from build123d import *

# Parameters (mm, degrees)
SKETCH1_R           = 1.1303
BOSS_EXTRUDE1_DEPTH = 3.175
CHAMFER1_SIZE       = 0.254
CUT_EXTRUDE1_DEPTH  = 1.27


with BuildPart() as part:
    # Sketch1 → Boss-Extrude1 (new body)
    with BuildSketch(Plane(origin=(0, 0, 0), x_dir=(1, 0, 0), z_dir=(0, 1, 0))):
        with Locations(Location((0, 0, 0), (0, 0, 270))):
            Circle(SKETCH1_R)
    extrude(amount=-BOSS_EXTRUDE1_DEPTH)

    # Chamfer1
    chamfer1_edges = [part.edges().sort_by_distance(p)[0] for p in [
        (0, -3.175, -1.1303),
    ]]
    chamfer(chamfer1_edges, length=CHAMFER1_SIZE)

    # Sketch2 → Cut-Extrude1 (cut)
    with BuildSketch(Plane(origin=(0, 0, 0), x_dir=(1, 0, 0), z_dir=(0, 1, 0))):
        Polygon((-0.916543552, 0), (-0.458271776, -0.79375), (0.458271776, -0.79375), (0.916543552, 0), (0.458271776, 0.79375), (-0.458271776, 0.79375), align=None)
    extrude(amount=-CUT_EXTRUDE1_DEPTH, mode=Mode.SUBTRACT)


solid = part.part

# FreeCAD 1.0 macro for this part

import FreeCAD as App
import Part
import Sketcher
Q = App.Units.Quantity


def edges_at(feature, points):
    """Names of the edges that pass closest to the given points."""
    edges = feature.Shape.Edges
    near = lambda p: min(range(len(edges)), key=lambda i: edges[i].distToShape(Part.Vertex(*p))[0])
    return sorted({f"Edge{near(p) + 1}" for p in points})

doc = App.newDocument("Part")
body = doc.addObject("PartDesign::Body", "Body")

sketch1 = doc.addObject("Sketcher::SketchObject", "Sketch")
body.addObject(sketch1)
sketch1.AttachmentSupport = (doc.XZ_Plane, [""])
sketch1.MapMode = "FlatFace"
sketch1.addGeometry(Part.Circle(App.Vector(0, 0, 0), App.Vector(0, 0, 1), 1.1), False)
sketch1.addConstraint([
    Sketcher.Constraint("Coincident", 0, 3, -1, 1),
    Sketcher.Constraint("Diameter", 0, Q("0.089 in")),
])
pad1 = doc.addObject("PartDesign::Pad", "Pad")
body.addObject(pad1)
pad1.Profile = sketch1
pad1.Length = Q("0.125 in")
doc.recompute()

chamfer = doc.addObject("PartDesign::Chamfer", "Chamfer")
body.addObject(chamfer)
chamfer.Base = (pad1, edges_at(pad1, [(0, -3.175, -1.13)]))
chamfer.Size = Q("0.01 in")

sketch2 = doc.addObject("Sketcher::SketchObject", "Sketch001")
body.addObject(sketch2)
sketch2.AttachmentSupport = (doc.XZ_Plane, [""])
sketch2.MapMode = "FlatFace"
sketch2.addGeometry([
    Part.LineSegment(App.Vector(-0.9, 0, 0), App.Vector(-0.5, 0.8, 0)),
    Part.LineSegment(App.Vector(-0.5, 0.8, 0), App.Vector(0.5, 0.8, 0)),
    Part.LineSegment(App.Vector(0.5, 0.8, 0), App.Vector(0.9, 0, 0)),
    Part.LineSegment(App.Vector(0.9, 0, 0), App.Vector(0.5, -0.8, 0)),
    Part.LineSegment(App.Vector(0.5, -0.8, 0), App.Vector(-0.5, -0.8, 0)),
    Part.LineSegment(App.Vector(-0.5, -0.8, 0), App.Vector(-0.9, 0, 0)),
], False)
sketch2.addConstraint([
    Sketcher.Constraint("Coincident", 0, 2, 1, 1),
    Sketcher.Constraint("Coincident", 1, 2, 2, 1),
    Sketcher.Constraint("Coincident", 2, 2, 3, 1),
    Sketcher.Constraint("Coincident", 3, 2, 4, 1),
    Sketcher.Constraint("Coincident", 4, 2, 5, 1),
    Sketcher.Constraint("Coincident", 5, 2, 0, 1),
    Sketcher.Constraint("Horizontal", 1),
    Sketcher.Constraint("Horizontal", 4),
    Sketcher.Constraint("Symmetric", 0, 2, 3, 2, -1, 1),
    Sketcher.Constraint("Symmetric", 2, 2, 5, 2, -1, 1),
    Sketcher.Constraint("PointOnObject", 2, 2, -1),
    Sketcher.Constraint("Parallel", 2, 5),
    Sketcher.Constraint("Vertical", 1, 2, 3, 2),
    Sketcher.Constraint("Angle", 0, Q("60 deg")),
    Sketcher.Constraint("DistanceY", -1, 1, 0, 2, Q("0.03125 in")),
    Sketcher.Constraint("DistanceX", 1, 1, 1, 2, Q("0.916544 mm")),
])
pocket1 = doc.addObject("PartDesign::Pocket", "Pocket")
body.addObject(pocket1)
pocket1.Profile = sketch2
pocket1.Length = Q("0.05 in")
pocket1.Reversed = True

doc.recompute()
